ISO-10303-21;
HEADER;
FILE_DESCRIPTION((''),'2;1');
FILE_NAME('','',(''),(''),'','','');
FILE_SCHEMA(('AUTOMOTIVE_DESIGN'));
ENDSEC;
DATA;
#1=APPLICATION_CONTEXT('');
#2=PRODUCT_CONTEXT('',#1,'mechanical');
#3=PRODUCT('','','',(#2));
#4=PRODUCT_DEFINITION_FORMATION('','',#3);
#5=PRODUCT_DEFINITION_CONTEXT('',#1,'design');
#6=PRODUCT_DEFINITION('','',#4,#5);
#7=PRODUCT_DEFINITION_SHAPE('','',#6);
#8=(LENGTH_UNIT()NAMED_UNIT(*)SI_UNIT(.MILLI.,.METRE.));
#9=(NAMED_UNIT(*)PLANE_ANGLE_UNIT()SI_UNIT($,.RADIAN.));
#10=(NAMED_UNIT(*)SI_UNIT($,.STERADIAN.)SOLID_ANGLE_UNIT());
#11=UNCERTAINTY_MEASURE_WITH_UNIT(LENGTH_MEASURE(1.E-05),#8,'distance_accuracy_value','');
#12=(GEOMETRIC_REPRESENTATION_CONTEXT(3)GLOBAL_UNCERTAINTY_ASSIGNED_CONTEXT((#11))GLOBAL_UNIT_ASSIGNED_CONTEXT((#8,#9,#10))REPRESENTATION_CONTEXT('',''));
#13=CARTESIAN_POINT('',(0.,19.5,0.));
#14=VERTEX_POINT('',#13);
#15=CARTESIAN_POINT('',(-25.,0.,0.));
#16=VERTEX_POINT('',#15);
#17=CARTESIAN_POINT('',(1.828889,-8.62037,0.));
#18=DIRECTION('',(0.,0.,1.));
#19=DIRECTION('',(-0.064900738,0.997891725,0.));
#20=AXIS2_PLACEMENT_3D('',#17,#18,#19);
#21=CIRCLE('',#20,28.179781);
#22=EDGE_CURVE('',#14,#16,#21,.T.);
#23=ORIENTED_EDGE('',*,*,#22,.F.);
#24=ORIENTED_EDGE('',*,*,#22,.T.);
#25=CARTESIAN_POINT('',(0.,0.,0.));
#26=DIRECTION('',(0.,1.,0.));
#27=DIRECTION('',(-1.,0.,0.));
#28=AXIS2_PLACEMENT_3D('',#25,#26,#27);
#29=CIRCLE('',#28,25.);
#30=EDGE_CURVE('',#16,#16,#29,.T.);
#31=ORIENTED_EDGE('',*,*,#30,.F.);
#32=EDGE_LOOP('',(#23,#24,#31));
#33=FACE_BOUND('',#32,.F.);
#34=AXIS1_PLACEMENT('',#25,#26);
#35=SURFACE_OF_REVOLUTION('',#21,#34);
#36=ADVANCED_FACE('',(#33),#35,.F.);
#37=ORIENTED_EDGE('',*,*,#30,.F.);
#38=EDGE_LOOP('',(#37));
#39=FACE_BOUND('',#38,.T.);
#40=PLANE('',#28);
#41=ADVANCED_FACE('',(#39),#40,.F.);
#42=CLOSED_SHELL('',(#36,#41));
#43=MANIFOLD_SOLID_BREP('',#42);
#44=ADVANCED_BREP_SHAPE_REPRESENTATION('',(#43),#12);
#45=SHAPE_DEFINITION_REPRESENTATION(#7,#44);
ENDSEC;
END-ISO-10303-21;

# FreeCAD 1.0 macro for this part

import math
import FreeCAD as App
import Part
import Sketcher
from FreeCAD import Vector

doc = App.newDocument("Part")
body = doc.addObject("PartDesign::Body", "Body")

# Sketch on XY plane
sketch1 = doc.addObject("Sketcher::SketchObject", "Sketch")
body.addObject(sketch1)
sketch1.AttachmentSupport = (doc.XY_Plane, [""])
sketch1.MapMode = "FlatFace"
sketch1.addGeometry([
    Part.LineSegment(Vector(-25, 0, 0), Vector(0, 0, 0)),
    Part.LineSegment(Vector(0, 0, 0), Vector(0, 19.5, 0)),
    Part.ArcOfCircle(Part.Circle(Vector(1.8289, -8.6204, 0), Vector(0, 0, 1), 28.179811), math.radians(93.721173), math.radians(162.187257)),
], False)
sketch1.addConstraint([
    Sketcher.Constraint("Coincident", 0, 2, 1, 1),
    Sketcher.Constraint("Coincident", 1, 2, 2, 1),
    Sketcher.Constraint("Coincident", 2, 2, 0, 1),
    Sketcher.Constraint("Horizontal", 0),
    Sketcher.Constraint("Vertical", 1),
    Sketcher.Constraint("Coincident", 0, 2, -1, 1),
    Sketcher.Constraint("DistanceX", 0, 1, 0, 2, 25.0),
    Sketcher.Constraint("DistanceY", 1, 1, 1, 2, 19.5),
    Sketcher.Constraint("Radius", 2, 28.1798),
])
revolution = doc.addObject("PartDesign::Revolution", "Revolution")
body.addObject(revolution)
revolution.Profile = sketch1
revolution.ReferenceAxis = (sketch1, ["V_Axis"])
revolution.Angle = 360

doc.recompute()
